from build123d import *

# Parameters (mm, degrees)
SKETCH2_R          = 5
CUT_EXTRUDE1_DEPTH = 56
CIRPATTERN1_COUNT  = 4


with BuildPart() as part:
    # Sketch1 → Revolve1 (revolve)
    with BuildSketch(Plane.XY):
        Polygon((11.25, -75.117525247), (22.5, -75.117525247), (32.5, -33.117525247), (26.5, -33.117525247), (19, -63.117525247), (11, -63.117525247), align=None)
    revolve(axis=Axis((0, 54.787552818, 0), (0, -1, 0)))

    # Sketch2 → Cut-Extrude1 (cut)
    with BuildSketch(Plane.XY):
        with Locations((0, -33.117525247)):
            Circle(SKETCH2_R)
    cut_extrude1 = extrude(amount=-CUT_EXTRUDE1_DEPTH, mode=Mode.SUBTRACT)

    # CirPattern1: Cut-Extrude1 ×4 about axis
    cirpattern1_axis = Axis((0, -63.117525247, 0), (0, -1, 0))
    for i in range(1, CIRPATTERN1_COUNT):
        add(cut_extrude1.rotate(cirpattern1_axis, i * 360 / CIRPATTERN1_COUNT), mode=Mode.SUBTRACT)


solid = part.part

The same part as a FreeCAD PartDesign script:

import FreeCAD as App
import Part
import Sketcher

doc = App.newDocument("Part")
body = doc.addObject("PartDesign::Body", "Body")

# Sketch on XY plane
sketch1 = body.newObject("Sketcher::SketchObject", "Sketch")
sketch1.AttachmentSupport = (doc.getObject("XY_Plane"), [""])
sketch1.MapMode = "FlatFace"
sketch1.addGeometry([
    Part.LineSegment(App.Vector(11, -75, 0), App.Vector(22, -75, 0)),  # 0
    Part.LineSegment(App.Vector(22, -75, 0), App.Vector(32, -33, 0)),  # 1
    Part.LineSegment(App.Vector(32, -33, 0), App.Vector(26, -33, 0)),  # 2
    Part.LineSegment(App.Vector(26, -33, 0), App.Vector(19, -63, 0)),  # 3
    Part.LineSegment(App.Vector(19, -63, 0), App.Vector(11, -63, 0)),  # 4
    Part.LineSegment(App.Vector(11, -63, 0), App.Vector(11, -75, 0)),  # 5
], False)
sketch1.addConstraint([
    Sketcher.Constraint("Coincident", 0, 2, 1, 1),
    Sketcher.Constraint("Coincident", 1, 2, 2, 1),
    Sketcher.Constraint("Coincident", 2, 2, 3, 1),
    Sketcher.Constraint("Coincident", 3, 2, 4, 1),
    Sketcher.Constraint("Coincident", 4, 2, 5, 1),
    Sketcher.Constraint("Coincident", 5, 2, 0, 1),
    Sketcher.Constraint("Horizontal", 0),
    Sketcher.Constraint("Horizontal", 2),
    Sketcher.Constraint("Horizontal", 4),
    Sketcher.Constraint("DistanceX", 2, 2, 2, 1, 6.0),
    Sketcher.Constraint("DistanceX", 4, 2, 4, 1, 8.0),
    Sketcher.Constraint("DistanceX", -1, 1, 3, 2, 19.0),
    Sketcher.Constraint("DistanceX", 0, 2, 1, 2, 10.0),
    Sketcher.Constraint("DistanceY", 0, 2, 1, 2, 42.0),
    Sketcher.Constraint("DistanceY", 0, 2, 3, 2, 12.0),
    Sketcher.Constraint("DistanceX", 0, 1, 0, 2, 11.25),
    Sketcher.Constraint("DistanceX", -1, 1, 0, 2, 22.5),
    Sketcher.Constraint("DistanceY", 0, 2, -1, 1, 75.117525),
])
revolution = body.newObject("PartDesign::Revolution", "Revolution")
revolution.Profile = sketch1
revolution.ReferenceAxis = (sketch1, ["V_Axis"])
revolution.Angle = 360

# Sketch on XY plane
sketch2 = body.newObject("Sketcher::SketchObject", "Sketch001")
sketch2.AttachmentSupport = (doc.getObject("XY_Plane"), [""])
sketch2.MapMode = "FlatFace"
sketch2.addGeometry(Part.Circle(App.Vector(0, -33, 0), App.Vector(0, 0, 1), 5), False)
sketch2.addConstraint([
    Sketcher.Constraint("PointOnObject", 0, 3, -2),
    Sketcher.Constraint("Diameter", 0, 10.0),
    Sketcher.Constraint("DistanceY", 0, 3, -1, 1, 33.117525),
])
pocket1 = body.newObject("PartDesign::Pocket", "Pocket")
pocket1.Profile = sketch2
pocket1.Length = 56
doc.recompute()

polarpattern = body.newObject("PartDesign::PolarPattern", "PolarPattern")
polarpattern.Originals = [pocket1]
polarpattern.Axis = (doc.getObject("Y_Axis"), [""])
polarpattern.Angle = 360
polarpattern.Occurrences = 4
body.Tip = polarpattern

doc.recompute()
